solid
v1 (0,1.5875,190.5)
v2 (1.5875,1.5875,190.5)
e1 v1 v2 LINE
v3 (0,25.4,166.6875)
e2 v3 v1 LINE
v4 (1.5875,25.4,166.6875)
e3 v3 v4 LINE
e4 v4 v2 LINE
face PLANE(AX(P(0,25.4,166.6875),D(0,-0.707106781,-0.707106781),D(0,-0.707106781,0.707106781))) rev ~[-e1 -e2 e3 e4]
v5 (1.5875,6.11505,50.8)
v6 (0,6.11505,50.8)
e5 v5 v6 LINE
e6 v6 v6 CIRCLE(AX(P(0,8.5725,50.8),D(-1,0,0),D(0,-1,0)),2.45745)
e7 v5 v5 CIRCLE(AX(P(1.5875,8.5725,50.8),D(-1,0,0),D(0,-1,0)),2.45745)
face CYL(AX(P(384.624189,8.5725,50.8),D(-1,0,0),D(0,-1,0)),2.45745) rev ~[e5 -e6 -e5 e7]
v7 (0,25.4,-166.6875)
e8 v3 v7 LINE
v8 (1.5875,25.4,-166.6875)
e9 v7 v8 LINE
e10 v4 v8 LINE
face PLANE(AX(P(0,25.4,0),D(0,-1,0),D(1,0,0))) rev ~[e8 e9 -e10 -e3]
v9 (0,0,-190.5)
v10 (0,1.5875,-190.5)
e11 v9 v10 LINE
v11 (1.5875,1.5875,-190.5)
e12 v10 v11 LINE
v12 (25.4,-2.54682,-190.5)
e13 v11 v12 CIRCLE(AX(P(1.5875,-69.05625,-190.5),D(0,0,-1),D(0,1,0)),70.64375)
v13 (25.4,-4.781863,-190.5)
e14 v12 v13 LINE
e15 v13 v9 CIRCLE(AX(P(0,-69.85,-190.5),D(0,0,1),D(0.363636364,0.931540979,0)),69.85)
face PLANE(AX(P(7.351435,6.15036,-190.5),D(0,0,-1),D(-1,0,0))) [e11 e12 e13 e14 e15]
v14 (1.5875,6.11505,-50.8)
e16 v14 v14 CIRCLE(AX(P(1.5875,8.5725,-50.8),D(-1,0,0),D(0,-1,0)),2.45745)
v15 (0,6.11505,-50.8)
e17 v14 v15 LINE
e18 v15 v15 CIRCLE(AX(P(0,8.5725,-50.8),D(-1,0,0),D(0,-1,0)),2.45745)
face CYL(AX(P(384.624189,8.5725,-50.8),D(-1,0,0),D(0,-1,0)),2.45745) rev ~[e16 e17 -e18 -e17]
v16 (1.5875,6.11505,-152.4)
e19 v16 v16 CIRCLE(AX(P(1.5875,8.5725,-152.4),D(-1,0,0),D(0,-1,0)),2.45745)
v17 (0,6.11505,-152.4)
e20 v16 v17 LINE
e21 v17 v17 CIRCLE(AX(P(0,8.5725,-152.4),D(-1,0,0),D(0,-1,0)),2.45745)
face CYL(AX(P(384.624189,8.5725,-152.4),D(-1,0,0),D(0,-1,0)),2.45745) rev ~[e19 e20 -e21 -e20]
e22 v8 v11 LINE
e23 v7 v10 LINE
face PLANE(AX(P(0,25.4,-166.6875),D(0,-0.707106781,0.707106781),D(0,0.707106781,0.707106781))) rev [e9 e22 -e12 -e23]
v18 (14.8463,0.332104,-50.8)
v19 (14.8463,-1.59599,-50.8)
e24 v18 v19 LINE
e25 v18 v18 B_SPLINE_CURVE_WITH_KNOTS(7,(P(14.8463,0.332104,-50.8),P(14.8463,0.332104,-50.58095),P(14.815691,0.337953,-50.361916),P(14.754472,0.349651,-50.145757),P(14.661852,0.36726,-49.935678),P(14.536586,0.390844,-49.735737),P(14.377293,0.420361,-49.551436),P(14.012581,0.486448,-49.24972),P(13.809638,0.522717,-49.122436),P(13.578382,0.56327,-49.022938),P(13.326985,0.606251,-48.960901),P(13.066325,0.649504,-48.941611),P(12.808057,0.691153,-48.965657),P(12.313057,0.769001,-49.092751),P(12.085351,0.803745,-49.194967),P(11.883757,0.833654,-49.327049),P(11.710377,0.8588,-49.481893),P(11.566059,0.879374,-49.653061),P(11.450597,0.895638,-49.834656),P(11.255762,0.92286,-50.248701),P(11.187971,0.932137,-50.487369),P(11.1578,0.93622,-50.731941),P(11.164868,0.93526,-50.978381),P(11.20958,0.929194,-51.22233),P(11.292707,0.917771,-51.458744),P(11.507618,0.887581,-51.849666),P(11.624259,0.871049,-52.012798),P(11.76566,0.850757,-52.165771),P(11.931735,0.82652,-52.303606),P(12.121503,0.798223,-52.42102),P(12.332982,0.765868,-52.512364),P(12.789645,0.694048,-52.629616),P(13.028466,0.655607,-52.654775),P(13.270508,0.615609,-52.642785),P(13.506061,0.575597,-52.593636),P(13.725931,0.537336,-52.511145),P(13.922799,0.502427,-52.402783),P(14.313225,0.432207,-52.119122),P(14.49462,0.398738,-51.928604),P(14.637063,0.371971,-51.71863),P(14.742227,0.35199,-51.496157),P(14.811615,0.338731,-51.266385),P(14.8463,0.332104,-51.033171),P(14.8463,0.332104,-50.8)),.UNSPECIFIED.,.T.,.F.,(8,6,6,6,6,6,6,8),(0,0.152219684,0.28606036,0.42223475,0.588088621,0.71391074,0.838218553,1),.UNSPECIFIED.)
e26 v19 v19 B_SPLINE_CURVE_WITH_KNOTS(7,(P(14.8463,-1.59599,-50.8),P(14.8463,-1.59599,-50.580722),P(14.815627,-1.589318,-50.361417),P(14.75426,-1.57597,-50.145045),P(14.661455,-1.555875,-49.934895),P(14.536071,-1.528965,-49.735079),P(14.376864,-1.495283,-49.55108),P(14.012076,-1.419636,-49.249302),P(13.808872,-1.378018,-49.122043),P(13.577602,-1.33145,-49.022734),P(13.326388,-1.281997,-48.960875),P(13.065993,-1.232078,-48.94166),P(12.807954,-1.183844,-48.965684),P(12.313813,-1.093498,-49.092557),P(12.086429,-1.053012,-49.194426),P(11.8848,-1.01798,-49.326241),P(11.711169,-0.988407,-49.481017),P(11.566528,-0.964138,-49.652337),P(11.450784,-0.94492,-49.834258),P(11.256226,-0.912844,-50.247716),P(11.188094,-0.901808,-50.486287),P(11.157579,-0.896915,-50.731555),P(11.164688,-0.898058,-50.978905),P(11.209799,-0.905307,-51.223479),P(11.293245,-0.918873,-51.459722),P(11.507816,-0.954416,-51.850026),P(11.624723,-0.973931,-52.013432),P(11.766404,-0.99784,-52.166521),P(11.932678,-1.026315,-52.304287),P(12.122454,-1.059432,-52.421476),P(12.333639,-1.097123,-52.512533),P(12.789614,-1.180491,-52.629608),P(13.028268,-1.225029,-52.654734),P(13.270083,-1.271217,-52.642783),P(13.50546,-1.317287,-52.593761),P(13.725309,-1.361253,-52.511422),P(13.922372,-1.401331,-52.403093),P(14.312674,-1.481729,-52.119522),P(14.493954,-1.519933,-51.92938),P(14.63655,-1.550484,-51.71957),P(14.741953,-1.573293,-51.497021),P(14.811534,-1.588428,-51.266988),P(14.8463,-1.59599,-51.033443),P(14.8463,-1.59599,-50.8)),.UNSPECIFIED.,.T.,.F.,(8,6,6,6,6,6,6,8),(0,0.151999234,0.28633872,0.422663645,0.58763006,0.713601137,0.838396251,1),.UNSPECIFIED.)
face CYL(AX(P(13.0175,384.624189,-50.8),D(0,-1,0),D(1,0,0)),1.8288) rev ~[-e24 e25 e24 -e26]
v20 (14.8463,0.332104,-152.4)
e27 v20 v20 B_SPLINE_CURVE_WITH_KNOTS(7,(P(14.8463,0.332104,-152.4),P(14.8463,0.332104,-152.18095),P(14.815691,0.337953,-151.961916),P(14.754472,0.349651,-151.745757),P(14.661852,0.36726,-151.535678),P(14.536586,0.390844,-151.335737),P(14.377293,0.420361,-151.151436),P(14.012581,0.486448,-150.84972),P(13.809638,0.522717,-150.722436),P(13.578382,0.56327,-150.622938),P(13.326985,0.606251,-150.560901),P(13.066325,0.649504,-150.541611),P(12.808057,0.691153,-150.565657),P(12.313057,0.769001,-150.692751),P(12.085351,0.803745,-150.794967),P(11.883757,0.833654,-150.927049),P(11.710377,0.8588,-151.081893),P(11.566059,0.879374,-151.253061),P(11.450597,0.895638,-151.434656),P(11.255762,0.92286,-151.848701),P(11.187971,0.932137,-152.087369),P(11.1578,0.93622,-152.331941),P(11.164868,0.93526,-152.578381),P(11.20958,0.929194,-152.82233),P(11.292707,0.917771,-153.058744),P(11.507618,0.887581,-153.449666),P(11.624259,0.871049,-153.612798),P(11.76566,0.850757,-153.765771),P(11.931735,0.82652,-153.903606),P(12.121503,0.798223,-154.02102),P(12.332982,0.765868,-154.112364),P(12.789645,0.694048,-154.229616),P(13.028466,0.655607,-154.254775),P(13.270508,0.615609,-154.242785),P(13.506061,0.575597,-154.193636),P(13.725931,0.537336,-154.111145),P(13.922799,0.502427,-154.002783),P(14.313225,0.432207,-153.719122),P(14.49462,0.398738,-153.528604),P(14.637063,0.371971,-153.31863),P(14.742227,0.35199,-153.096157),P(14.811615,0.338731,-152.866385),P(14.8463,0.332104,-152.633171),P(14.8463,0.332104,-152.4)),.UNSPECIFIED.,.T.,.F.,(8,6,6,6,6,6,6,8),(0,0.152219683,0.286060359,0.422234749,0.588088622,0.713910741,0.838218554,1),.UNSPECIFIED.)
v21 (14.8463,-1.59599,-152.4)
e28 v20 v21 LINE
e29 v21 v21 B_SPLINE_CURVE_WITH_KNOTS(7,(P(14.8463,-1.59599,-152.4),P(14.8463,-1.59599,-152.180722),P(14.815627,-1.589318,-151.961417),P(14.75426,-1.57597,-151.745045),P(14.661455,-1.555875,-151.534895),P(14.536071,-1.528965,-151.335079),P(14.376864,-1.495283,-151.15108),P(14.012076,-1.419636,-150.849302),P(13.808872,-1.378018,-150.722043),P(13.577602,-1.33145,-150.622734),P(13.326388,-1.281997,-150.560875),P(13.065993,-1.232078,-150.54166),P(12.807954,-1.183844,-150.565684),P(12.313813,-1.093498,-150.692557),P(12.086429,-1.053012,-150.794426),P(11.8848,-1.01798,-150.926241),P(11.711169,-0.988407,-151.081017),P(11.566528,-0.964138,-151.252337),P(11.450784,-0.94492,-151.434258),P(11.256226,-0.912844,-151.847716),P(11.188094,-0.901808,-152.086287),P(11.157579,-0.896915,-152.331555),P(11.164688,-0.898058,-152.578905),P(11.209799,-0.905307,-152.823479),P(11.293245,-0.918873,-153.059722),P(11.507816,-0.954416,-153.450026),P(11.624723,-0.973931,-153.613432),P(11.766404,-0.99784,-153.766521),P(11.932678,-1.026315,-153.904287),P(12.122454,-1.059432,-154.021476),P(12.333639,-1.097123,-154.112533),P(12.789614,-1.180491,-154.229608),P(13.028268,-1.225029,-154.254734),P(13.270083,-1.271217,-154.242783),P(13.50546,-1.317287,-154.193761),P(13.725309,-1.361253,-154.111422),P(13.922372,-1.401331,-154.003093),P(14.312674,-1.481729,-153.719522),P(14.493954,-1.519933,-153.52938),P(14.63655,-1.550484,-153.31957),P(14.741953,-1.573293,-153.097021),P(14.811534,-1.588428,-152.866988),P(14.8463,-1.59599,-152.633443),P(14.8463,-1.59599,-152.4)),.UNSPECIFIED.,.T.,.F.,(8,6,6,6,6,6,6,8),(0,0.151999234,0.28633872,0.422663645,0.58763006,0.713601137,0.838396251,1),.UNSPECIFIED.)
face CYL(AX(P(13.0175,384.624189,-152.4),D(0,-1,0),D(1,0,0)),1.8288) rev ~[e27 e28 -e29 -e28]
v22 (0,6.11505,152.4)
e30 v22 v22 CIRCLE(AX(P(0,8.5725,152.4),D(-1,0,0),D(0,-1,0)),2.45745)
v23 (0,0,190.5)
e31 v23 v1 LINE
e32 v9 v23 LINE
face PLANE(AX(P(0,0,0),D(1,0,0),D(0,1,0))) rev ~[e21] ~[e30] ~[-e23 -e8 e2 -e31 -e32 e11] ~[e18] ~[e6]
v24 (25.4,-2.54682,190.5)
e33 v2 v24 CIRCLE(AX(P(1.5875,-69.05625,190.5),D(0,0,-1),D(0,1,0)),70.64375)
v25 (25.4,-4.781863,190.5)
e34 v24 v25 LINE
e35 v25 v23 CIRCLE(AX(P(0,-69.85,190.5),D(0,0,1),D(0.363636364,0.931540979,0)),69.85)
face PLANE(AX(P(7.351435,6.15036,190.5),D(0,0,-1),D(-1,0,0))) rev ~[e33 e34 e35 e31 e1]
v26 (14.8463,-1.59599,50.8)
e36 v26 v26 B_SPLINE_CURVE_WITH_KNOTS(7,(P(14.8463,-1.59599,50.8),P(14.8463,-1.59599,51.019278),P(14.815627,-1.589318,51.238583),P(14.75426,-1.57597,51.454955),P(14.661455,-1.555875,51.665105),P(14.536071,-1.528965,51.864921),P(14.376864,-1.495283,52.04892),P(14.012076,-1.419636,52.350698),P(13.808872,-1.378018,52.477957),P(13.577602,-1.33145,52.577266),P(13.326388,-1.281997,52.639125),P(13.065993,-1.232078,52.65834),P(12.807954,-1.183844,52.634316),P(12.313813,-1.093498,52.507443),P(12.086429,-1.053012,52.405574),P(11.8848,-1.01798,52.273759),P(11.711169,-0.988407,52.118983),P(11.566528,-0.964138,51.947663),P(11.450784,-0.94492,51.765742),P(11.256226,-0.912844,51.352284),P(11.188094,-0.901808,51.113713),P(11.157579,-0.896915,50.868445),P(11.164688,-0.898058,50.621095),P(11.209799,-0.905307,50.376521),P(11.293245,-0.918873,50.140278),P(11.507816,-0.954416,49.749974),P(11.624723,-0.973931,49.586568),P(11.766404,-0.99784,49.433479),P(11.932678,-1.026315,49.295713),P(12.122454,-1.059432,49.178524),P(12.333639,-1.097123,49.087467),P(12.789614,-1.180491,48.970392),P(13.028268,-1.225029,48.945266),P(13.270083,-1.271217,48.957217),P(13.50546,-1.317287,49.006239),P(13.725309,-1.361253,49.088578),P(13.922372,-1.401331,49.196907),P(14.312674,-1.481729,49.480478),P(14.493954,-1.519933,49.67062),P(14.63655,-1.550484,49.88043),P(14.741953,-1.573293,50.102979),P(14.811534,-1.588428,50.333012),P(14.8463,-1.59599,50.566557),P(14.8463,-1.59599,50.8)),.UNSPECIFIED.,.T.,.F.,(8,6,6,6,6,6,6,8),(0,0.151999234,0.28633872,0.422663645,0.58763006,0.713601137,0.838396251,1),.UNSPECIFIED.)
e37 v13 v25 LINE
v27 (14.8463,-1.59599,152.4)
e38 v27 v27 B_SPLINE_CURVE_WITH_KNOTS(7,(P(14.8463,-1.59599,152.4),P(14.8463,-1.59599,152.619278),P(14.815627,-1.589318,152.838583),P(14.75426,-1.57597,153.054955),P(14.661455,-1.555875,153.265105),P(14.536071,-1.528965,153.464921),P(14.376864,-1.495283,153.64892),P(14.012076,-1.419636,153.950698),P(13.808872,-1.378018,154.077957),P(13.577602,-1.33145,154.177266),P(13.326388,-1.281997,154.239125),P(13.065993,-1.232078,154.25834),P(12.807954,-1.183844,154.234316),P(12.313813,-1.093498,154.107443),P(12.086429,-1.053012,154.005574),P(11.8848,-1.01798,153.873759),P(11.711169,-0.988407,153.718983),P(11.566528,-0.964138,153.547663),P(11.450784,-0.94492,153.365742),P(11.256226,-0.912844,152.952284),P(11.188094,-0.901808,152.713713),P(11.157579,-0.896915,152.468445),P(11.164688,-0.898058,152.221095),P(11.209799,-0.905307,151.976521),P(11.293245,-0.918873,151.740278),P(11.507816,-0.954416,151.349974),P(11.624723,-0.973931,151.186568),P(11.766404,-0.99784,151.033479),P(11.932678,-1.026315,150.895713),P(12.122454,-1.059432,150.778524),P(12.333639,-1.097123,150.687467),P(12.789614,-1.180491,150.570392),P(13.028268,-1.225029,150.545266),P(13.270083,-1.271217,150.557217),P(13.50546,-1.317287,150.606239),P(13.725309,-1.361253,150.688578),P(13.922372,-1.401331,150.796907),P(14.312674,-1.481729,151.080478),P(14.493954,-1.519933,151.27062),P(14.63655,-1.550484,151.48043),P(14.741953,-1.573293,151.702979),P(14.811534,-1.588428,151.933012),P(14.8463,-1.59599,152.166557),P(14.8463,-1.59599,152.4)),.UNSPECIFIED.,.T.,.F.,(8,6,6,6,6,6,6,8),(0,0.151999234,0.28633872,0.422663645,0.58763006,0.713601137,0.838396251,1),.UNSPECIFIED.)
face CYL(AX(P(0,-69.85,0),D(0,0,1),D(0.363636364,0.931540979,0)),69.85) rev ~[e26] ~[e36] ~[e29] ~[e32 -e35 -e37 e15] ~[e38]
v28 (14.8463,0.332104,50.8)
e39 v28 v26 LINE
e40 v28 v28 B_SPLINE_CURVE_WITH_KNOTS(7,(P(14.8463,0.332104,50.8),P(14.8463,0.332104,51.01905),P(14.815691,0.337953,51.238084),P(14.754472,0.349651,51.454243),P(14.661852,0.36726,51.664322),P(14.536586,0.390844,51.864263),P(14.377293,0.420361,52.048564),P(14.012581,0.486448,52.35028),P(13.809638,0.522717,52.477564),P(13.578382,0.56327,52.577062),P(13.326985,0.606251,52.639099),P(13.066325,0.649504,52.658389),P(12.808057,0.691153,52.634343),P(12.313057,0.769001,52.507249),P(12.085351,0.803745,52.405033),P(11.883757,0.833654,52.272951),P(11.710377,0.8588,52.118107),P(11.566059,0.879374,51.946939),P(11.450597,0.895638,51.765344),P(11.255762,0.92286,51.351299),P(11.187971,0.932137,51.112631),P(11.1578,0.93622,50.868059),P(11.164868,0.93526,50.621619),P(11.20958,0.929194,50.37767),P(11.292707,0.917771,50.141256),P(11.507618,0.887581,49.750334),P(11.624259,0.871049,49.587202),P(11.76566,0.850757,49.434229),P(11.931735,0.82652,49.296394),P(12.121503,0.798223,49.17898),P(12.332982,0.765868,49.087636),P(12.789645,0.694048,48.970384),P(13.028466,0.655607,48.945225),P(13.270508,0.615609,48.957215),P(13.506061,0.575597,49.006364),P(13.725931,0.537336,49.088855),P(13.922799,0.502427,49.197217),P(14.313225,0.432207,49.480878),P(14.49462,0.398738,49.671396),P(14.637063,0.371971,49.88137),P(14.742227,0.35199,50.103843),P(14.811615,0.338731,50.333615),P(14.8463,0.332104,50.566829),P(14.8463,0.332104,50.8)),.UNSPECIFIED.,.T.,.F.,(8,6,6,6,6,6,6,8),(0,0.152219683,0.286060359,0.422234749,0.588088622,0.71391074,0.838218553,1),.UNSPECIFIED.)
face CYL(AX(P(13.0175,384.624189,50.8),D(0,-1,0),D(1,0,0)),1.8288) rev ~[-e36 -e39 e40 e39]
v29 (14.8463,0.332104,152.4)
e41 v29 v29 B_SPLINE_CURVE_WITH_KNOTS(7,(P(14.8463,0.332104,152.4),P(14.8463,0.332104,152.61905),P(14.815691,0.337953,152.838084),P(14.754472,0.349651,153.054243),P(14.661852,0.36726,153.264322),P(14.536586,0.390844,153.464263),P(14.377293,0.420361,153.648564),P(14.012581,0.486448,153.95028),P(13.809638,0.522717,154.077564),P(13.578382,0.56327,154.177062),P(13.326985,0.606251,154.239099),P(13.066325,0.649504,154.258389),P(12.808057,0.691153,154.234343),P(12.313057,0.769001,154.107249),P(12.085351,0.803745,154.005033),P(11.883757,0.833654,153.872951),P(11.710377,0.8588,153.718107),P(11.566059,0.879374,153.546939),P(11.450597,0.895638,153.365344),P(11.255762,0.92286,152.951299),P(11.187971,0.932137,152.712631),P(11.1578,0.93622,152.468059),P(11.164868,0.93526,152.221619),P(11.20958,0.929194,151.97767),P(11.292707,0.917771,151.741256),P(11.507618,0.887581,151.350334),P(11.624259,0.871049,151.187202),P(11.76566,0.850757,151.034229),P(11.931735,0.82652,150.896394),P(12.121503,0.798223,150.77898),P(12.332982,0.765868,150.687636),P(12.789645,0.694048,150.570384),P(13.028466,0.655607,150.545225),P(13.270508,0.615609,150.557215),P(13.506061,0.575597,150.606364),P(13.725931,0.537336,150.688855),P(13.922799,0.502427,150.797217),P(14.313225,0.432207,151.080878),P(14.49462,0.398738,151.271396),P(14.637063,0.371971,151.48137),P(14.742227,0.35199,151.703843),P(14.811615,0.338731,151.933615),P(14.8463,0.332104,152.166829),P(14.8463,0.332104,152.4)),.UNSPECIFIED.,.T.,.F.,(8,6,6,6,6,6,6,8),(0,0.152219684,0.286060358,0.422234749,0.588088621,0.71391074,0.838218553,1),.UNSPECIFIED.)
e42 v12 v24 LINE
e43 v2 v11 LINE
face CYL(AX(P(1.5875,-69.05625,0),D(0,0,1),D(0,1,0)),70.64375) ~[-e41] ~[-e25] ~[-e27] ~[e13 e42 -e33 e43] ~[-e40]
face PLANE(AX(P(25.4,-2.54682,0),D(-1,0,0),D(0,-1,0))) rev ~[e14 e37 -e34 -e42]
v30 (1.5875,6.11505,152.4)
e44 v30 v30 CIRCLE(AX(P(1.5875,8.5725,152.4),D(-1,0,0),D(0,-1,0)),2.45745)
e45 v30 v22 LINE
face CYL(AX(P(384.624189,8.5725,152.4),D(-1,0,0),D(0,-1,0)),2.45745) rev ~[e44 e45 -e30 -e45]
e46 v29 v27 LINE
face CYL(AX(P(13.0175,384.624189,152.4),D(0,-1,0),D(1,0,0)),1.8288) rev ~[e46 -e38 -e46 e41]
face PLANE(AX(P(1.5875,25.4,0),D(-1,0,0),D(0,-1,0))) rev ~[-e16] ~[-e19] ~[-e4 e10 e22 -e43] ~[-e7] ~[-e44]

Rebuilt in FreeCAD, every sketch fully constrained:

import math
import FreeCAD as App
import Part
import Sketcher
from FreeCAD import Vector
Q = App.Units.Quantity

doc = App.newDocument("Part")
body = doc.addObject("PartDesign::Body", "Body")

# Sketch on XY plane
sketch1 = doc.addObject("Sketcher::SketchObject", "Sketch")
body.addObject(sketch1)
sketch1.AttachmentSupport = (doc.XY_Plane, [""])
sketch1.MapMode = "FlatFace"
sketch1.addGeometry([
    Part.LineSegment(Vector(0, 25.4, 0), Vector(0, 0, 0)),  # 0
    Part.ArcOfCircle(Part.Circle(Vector(0, -69.85, 0), Vector(0, 0, 1), 69.85), math.radians(68.676314), math.radians(90)),  # 1
    Part.LineSegment(Vector(25.4, -4.781863, 0), Vector(25.4, -2.54682, 0)),  # 2
    Part.ArcOfCircle(Part.Circle(Vector(1.5875, -69.05625, 0), Vector(0, 0, 1), 70.64375), math.radians(70.301011), math.radians(90)),  # 3
    Part.LineSegment(Vector(1.5875, 1.5875, 0), Vector(1.5875, 25.4, 0)),  # 4
    Part.LineSegment(Vector(1.5875, 25.4, 0), Vector(0, 25.4, 0)),  # 5
], False)
sketch1.addConstraint([
    Sketcher.Constraint("Coincident", 0, 2, 1, 2),
    Sketcher.Constraint("Coincident", 1, 1, 2, 1),
    Sketcher.Constraint("Coincident", 2, 2, 3, 1),
    Sketcher.Constraint("Coincident", 3, 2, 4, 1),
    Sketcher.Constraint("Coincident", 4, 2, 5, 1),
    Sketcher.Constraint("Coincident", 5, 2, 0, 1),
    Sketcher.Constraint("Vertical", 0),
    Sketcher.Constraint("Vertical", 2),
    Sketcher.Constraint("Vertical", 4),
    Sketcher.Constraint("Horizontal", 5),
    Sketcher.Constraint("Coincident", 0, 2, -1, 1),
    Sketcher.Constraint("PointOnObject", 1, 3, -2),
    Sketcher.Constraint("DistanceY", 0, 2, 0, 1, Q("1 in")),
    Sketcher.Constraint("Radius", 1, Q("2.75 in")),
    Sketcher.Constraint("DistanceX", -1, 1, 1, 1, Q("1 in")),
    Sketcher.Constraint("Radius", 3, Q("2.78125 in")),
    Sketcher.Constraint("DistanceX", 5, 2, 5, 1, Q("0.0625 in")),
    Sketcher.Constraint("DistanceY", 4, 1, 4, 2, Q("0.9375 in")),
    Sketcher.Constraint("DistanceX", -1, 1, 3, 3, Q("0.0625 in")),
])
pad1 = doc.addObject("PartDesign::Pad", "Pad")
body.addObject(pad1)
pad1.Profile = sketch1
pad1.Length = Q("15 in")
pad1.Midplane = True

# Sketch on YZ plane
sketch2 = doc.addObject("Sketcher::SketchObject", "Sketch001")
body.addObject(sketch2)
sketch2.AttachmentSupport = (doc.YZ_Plane, [""])
sketch2.MapMode = "FlatFace"
sketch2.addGeometry([
    Part.LineSegment(Vector(25.4, 190.5, 0), Vector(25.4, 166.6875, 0)),
    Part.LineSegment(Vector(25.4, 166.6875, 0), Vector(1.5875, 190.5, 0)),
    Part.LineSegment(Vector(1.5875, 190.5, 0), Vector(25.4, 190.5, 0)),
], False)
sketch2.addConstraint([
    Sketcher.Constraint("Coincident", 0, 2, 1, 1),
    Sketcher.Constraint("Coincident", 1, 2, 2, 1),
    Sketcher.Constraint("Coincident", 2, 2, 0, 1),
    Sketcher.Constraint("Vertical", 0),
    Sketcher.Constraint("Horizontal", 2),
    Sketcher.Constraint("Equal", 2, 0),
    Sketcher.Constraint("DistanceX", -1, 1, 0, 2, Q("1 in")),
    Sketcher.Constraint("DistanceY", -1, 1, 1, 2, Q("7.5 in")),
    Sketcher.Constraint("DistanceX", 2, 1, 2, 2, Q("0.9375 in")),
])
pocket1 = doc.addObject("PartDesign::Pocket", "Pocket")
body.addObject(pocket1)
pocket1.Profile = sketch2
pocket1.Length = Q("15.25 in")
pocket1.Reversed = True
doc.recompute()

mirrored = doc.addObject("PartDesign::Mirrored", "Mirrored")
body.addObject(mirrored)
mirrored.Originals = [pocket1]
mirrored.MirrorPlane = (doc.XY_Plane, [""])
body.Tip = mirrored

# Sketch on XZ plane
sketch3 = doc.addObject("Sketcher::SketchObject", "Sketch002")
body.addObject(sketch3)
sketch3.AttachmentSupport = (doc.XZ_Plane, [""])
sketch3.MapMode = "FlatFace"
sketch3.AttachmentOffset = App.Placement(Vector(0, 0, -0.0625 * 25.4), App.Rotation())
sketch3.addGeometry(Part.Circle(Vector(13.0175, -50.8, 0), Vector(0, 0, 1), 1.8288), False)
sketch3.addConstraint([
    Sketcher.Constraint("Diameter", 0, Q("0.144 in")),
    Sketcher.Constraint("DistanceY", 0, 3, -1, 1, Q("2 in")),
    Sketcher.Constraint("DistanceX", -1, 1, 0, 3, Q("0.5125 in")),
])
doc.recompute()
hole = doc.addObject("PartDesign::Hole", "Hole")
body.addObject(hole)
hole.Profile = sketch3
hole.ThreadType = "None"
hole.Diameter = Q("0.144 in")
hole.DepthType = "ThroughAll"
hole.Reversed = True

# Sketch on YZ plane
sketch4 = doc.addObject("Sketcher::SketchObject", "Sketch003")
body.addObject(sketch4)
sketch4.AttachmentSupport = (doc.YZ_Plane, [""])
sketch4.MapMode = "FlatFace"
sketch4.AttachmentOffset = App.Placement(Vector(0, 0, 0.0625 * 25.4), App.Rotation())
sketch4.addGeometry(Part.Circle(Vector(8.5725, -50.8, 0), Vector(0, 0, 1), 2.45745), False)
sketch4.addConstraint([
    Sketcher.Constraint("DistanceY", 0, 3, -1, 1, Q("2 in")),
    Sketcher.Constraint("Diameter", 0, Q("0.1935 in")),
    Sketcher.Constraint("DistanceX", -1, 1, 0, 3, Q("0.3375 in")),
])
doc.recompute()
hole2 = doc.addObject("PartDesign::Hole", "Hole001")
body.addObject(hole2)
hole2.Profile = sketch4
hole2.ThreadType = "None"
hole2.Diameter = Q("0.1935 in")
hole2.DepthType = "ThroughAll"
doc.recompute()

linearpattern = doc.addObject("PartDesign::LinearPattern", "LinearPattern")
body.addObject(linearpattern)
linearpattern.Originals = [hole, hole2]
linearpattern.Direction = (doc.Z_Axis, [""])
linearpattern.Mode = "offset"
linearpattern.Offset = Q("4 in")
linearpattern.Occurrences = 3
body.Tip = linearpattern
doc.recompute()

linearpattern2 = doc.addObject("PartDesign::LinearPattern", "LinearPattern001")
body.addObject(linearpattern2)
linearpattern2.Originals = [hole, hole2]
linearpattern2.Direction = (doc.Z_Axis, [""])
linearpattern2.Mode = "offset"
linearpattern2.Offset = Q("4 in")
linearpattern2.Occurrences = 2
linearpattern2.Reversed = True
body.Tip = linearpattern2

doc.recompute()
